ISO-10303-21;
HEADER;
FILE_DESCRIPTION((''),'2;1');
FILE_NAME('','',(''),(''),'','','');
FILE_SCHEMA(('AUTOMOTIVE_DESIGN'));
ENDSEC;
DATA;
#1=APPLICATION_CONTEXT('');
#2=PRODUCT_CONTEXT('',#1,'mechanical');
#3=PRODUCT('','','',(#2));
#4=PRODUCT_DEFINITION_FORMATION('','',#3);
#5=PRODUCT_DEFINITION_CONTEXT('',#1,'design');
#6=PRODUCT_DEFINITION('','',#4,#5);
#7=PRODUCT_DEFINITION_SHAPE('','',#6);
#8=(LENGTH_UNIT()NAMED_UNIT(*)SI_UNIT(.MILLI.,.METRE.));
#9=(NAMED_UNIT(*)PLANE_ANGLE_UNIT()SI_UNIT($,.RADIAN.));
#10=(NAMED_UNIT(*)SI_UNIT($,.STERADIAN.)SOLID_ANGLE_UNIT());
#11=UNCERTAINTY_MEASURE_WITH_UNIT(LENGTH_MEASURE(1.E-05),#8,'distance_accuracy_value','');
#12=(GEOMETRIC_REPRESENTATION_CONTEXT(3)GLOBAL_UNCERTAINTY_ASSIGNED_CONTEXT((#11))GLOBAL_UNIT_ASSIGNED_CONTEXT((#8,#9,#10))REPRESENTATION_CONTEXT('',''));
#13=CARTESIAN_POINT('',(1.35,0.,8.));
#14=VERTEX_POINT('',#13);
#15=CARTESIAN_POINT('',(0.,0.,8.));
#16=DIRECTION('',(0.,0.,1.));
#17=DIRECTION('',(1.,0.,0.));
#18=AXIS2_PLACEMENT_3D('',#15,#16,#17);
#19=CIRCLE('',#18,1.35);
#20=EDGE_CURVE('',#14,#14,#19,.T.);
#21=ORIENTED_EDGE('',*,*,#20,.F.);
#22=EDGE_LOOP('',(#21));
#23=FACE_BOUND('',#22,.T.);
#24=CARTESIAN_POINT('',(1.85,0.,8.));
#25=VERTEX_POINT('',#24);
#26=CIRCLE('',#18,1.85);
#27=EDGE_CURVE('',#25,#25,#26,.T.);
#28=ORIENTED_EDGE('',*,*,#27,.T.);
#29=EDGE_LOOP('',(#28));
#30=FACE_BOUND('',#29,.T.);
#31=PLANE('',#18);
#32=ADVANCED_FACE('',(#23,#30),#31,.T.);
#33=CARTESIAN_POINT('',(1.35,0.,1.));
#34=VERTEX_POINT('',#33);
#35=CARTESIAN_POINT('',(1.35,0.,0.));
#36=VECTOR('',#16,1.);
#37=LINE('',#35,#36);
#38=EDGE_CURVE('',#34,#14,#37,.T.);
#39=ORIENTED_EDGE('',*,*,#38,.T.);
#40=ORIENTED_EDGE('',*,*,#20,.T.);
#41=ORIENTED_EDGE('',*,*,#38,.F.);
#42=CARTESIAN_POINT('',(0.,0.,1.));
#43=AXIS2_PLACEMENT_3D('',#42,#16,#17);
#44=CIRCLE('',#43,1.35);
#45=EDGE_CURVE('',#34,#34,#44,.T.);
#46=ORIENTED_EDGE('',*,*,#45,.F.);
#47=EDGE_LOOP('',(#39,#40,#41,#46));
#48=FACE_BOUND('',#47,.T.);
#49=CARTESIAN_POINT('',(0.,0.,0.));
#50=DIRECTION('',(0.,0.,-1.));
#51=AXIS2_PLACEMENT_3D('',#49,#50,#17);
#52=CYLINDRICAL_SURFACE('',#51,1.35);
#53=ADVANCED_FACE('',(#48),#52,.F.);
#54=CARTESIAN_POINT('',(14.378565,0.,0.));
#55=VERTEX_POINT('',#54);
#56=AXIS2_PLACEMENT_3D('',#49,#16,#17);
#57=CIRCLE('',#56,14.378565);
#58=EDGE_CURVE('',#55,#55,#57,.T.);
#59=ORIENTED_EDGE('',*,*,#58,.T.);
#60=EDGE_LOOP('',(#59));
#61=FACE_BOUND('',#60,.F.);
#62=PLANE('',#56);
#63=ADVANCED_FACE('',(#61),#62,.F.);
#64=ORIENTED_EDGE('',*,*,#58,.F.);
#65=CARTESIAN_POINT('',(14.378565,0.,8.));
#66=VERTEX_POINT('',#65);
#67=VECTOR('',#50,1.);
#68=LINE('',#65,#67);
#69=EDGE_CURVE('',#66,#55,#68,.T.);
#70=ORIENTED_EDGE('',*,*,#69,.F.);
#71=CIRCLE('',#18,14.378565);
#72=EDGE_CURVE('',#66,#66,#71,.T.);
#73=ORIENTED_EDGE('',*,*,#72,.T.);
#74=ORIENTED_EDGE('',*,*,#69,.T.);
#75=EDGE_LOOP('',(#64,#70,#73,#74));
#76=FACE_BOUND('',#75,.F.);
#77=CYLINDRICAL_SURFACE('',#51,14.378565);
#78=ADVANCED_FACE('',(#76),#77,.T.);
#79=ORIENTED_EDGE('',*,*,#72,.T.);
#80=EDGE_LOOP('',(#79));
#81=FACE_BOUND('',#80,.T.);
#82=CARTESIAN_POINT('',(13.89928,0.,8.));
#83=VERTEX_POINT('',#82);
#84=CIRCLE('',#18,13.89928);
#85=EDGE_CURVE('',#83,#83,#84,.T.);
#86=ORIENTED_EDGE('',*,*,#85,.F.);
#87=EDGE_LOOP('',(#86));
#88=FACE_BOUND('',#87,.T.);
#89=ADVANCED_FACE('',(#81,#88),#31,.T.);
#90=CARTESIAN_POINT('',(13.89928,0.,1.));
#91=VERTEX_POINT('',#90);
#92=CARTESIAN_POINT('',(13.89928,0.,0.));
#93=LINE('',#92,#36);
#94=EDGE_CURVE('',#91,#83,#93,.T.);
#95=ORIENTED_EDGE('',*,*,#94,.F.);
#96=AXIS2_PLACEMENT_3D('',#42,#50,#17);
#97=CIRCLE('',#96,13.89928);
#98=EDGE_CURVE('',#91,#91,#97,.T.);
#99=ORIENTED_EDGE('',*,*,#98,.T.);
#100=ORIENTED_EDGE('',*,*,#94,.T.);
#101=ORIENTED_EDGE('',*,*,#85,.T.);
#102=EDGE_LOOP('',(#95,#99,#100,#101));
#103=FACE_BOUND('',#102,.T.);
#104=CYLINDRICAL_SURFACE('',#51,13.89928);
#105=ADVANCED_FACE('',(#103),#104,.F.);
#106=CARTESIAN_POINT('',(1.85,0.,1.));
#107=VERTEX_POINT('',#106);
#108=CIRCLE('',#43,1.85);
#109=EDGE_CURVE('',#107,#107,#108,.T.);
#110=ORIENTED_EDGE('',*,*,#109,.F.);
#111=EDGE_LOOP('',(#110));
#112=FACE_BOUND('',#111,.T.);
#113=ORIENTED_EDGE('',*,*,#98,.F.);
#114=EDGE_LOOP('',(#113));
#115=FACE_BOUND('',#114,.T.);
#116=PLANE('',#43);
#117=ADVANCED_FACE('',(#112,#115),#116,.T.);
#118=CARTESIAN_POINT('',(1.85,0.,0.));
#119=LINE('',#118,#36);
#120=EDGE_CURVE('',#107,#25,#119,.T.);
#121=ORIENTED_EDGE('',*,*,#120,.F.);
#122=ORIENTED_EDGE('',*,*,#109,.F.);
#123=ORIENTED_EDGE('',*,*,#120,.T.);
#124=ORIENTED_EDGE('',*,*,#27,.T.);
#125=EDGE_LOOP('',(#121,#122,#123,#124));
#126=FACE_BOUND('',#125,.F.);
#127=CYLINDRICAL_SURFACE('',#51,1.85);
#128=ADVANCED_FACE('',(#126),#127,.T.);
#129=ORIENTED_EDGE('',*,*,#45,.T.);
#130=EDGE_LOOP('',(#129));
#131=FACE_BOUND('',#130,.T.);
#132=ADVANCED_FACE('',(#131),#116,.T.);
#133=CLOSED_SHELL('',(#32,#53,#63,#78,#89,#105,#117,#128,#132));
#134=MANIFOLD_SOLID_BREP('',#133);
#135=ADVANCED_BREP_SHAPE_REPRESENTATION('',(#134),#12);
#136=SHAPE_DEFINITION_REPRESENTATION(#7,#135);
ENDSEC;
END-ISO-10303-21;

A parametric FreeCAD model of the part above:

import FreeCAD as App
import Part
import Sketcher
from FreeCAD import Vector

doc = App.newDocument("Part")
body = doc.addObject("PartDesign::Body", "Body")
body.AllowCompound = True

sketch1 = body.newObject("Sketcher::SketchObject", "Sketch")
sketch1.AttachmentSupport = (doc.getObject("XY_Plane"), [""])
sketch1.MapMode = "FlatFace"
sketch1.addGeometry(Part.Circle(Vector(0, 0, 0), Vector(0, 0, 1), 14.4), False)
sketch1.addGeometry(Part.Circle(Vector(0, 0, 0), Vector(0, 0, 1), 1.9), False)
sketch1.addGeometry(Part.Circle(Vector(0, 0, 0), Vector(0, 0, 1), 1.4), False)
sketch1.addConstraint(Sketcher.Constraint("Coincident", 0, 3, -1, 1))
sketch1.addConstraint(Sketcher.Constraint("Coincident", 1, 3, -1, 1))
sketch1.addConstraint(Sketcher.Constraint("Coincident", 2, 3, -1, 1))
sketch1.addConstraint(Sketcher.Constraint("Diameter", 1, 3.7))
sketch1.addConstraint(Sketcher.Constraint("Diameter", 2, 2.7))
sketch1.addConstraint(Sketcher.Constraint("Diameter", 0, 28.75713))
pad1 = body.newObject("PartDesign::Pad", "Pad")
pad1.Profile = sketch1
pad1.Length = 1

sketch2 = body.newObject("Sketcher::SketchObject", "Sketch001")
sketch2.AttachmentSupport = (doc.getObject("XY_Plane"), [""])
sketch2.MapMode = "FlatFace"
sketch2.addGeometry(Part.Circle(Vector(0, 0, 0), Vector(0, 0, 1), 14.4), False)
sketch2.addGeometry(Part.Circle(Vector(0, 0, 0), Vector(0, 0, 1), 13.9), False)
sketch2.addGeometry(Part.Circle(Vector(0, 0, 0), Vector(0, 0, 1), 1.9), False)
sketch2.addGeometry(Part.Circle(Vector(0, 0, 0), Vector(0, 0, 1), 1.4), False)
sketch2.addConstraint(Sketcher.Constraint("Coincident", 0, 3, -1, 1))
sketch2.addConstraint(Sketcher.Constraint("Coincident", 1, 3, -1, 1))
sketch2.addConstraint(Sketcher.Constraint("Coincident", 2, 3, -1, 1))
sketch2.addConstraint(Sketcher.Constraint("Coincident", 3, 3, -1, 1))
sketch2.addConstraint(Sketcher.Constraint("Diameter", 2, 3.7))
sketch2.addConstraint(Sketcher.Constraint("Diameter", 3, 2.7))
sketch2.addConstraint(Sketcher.Constraint("Diameter", 0, 28.75713))
sketch2.addConstraint(Sketcher.Constraint("Diameter", 1, 27.79856))
pad2 = body.newObject("PartDesign::Pad", "Pad001")
pad2.Profile = sketch2
pad2.Length = 8

doc.recompute()
